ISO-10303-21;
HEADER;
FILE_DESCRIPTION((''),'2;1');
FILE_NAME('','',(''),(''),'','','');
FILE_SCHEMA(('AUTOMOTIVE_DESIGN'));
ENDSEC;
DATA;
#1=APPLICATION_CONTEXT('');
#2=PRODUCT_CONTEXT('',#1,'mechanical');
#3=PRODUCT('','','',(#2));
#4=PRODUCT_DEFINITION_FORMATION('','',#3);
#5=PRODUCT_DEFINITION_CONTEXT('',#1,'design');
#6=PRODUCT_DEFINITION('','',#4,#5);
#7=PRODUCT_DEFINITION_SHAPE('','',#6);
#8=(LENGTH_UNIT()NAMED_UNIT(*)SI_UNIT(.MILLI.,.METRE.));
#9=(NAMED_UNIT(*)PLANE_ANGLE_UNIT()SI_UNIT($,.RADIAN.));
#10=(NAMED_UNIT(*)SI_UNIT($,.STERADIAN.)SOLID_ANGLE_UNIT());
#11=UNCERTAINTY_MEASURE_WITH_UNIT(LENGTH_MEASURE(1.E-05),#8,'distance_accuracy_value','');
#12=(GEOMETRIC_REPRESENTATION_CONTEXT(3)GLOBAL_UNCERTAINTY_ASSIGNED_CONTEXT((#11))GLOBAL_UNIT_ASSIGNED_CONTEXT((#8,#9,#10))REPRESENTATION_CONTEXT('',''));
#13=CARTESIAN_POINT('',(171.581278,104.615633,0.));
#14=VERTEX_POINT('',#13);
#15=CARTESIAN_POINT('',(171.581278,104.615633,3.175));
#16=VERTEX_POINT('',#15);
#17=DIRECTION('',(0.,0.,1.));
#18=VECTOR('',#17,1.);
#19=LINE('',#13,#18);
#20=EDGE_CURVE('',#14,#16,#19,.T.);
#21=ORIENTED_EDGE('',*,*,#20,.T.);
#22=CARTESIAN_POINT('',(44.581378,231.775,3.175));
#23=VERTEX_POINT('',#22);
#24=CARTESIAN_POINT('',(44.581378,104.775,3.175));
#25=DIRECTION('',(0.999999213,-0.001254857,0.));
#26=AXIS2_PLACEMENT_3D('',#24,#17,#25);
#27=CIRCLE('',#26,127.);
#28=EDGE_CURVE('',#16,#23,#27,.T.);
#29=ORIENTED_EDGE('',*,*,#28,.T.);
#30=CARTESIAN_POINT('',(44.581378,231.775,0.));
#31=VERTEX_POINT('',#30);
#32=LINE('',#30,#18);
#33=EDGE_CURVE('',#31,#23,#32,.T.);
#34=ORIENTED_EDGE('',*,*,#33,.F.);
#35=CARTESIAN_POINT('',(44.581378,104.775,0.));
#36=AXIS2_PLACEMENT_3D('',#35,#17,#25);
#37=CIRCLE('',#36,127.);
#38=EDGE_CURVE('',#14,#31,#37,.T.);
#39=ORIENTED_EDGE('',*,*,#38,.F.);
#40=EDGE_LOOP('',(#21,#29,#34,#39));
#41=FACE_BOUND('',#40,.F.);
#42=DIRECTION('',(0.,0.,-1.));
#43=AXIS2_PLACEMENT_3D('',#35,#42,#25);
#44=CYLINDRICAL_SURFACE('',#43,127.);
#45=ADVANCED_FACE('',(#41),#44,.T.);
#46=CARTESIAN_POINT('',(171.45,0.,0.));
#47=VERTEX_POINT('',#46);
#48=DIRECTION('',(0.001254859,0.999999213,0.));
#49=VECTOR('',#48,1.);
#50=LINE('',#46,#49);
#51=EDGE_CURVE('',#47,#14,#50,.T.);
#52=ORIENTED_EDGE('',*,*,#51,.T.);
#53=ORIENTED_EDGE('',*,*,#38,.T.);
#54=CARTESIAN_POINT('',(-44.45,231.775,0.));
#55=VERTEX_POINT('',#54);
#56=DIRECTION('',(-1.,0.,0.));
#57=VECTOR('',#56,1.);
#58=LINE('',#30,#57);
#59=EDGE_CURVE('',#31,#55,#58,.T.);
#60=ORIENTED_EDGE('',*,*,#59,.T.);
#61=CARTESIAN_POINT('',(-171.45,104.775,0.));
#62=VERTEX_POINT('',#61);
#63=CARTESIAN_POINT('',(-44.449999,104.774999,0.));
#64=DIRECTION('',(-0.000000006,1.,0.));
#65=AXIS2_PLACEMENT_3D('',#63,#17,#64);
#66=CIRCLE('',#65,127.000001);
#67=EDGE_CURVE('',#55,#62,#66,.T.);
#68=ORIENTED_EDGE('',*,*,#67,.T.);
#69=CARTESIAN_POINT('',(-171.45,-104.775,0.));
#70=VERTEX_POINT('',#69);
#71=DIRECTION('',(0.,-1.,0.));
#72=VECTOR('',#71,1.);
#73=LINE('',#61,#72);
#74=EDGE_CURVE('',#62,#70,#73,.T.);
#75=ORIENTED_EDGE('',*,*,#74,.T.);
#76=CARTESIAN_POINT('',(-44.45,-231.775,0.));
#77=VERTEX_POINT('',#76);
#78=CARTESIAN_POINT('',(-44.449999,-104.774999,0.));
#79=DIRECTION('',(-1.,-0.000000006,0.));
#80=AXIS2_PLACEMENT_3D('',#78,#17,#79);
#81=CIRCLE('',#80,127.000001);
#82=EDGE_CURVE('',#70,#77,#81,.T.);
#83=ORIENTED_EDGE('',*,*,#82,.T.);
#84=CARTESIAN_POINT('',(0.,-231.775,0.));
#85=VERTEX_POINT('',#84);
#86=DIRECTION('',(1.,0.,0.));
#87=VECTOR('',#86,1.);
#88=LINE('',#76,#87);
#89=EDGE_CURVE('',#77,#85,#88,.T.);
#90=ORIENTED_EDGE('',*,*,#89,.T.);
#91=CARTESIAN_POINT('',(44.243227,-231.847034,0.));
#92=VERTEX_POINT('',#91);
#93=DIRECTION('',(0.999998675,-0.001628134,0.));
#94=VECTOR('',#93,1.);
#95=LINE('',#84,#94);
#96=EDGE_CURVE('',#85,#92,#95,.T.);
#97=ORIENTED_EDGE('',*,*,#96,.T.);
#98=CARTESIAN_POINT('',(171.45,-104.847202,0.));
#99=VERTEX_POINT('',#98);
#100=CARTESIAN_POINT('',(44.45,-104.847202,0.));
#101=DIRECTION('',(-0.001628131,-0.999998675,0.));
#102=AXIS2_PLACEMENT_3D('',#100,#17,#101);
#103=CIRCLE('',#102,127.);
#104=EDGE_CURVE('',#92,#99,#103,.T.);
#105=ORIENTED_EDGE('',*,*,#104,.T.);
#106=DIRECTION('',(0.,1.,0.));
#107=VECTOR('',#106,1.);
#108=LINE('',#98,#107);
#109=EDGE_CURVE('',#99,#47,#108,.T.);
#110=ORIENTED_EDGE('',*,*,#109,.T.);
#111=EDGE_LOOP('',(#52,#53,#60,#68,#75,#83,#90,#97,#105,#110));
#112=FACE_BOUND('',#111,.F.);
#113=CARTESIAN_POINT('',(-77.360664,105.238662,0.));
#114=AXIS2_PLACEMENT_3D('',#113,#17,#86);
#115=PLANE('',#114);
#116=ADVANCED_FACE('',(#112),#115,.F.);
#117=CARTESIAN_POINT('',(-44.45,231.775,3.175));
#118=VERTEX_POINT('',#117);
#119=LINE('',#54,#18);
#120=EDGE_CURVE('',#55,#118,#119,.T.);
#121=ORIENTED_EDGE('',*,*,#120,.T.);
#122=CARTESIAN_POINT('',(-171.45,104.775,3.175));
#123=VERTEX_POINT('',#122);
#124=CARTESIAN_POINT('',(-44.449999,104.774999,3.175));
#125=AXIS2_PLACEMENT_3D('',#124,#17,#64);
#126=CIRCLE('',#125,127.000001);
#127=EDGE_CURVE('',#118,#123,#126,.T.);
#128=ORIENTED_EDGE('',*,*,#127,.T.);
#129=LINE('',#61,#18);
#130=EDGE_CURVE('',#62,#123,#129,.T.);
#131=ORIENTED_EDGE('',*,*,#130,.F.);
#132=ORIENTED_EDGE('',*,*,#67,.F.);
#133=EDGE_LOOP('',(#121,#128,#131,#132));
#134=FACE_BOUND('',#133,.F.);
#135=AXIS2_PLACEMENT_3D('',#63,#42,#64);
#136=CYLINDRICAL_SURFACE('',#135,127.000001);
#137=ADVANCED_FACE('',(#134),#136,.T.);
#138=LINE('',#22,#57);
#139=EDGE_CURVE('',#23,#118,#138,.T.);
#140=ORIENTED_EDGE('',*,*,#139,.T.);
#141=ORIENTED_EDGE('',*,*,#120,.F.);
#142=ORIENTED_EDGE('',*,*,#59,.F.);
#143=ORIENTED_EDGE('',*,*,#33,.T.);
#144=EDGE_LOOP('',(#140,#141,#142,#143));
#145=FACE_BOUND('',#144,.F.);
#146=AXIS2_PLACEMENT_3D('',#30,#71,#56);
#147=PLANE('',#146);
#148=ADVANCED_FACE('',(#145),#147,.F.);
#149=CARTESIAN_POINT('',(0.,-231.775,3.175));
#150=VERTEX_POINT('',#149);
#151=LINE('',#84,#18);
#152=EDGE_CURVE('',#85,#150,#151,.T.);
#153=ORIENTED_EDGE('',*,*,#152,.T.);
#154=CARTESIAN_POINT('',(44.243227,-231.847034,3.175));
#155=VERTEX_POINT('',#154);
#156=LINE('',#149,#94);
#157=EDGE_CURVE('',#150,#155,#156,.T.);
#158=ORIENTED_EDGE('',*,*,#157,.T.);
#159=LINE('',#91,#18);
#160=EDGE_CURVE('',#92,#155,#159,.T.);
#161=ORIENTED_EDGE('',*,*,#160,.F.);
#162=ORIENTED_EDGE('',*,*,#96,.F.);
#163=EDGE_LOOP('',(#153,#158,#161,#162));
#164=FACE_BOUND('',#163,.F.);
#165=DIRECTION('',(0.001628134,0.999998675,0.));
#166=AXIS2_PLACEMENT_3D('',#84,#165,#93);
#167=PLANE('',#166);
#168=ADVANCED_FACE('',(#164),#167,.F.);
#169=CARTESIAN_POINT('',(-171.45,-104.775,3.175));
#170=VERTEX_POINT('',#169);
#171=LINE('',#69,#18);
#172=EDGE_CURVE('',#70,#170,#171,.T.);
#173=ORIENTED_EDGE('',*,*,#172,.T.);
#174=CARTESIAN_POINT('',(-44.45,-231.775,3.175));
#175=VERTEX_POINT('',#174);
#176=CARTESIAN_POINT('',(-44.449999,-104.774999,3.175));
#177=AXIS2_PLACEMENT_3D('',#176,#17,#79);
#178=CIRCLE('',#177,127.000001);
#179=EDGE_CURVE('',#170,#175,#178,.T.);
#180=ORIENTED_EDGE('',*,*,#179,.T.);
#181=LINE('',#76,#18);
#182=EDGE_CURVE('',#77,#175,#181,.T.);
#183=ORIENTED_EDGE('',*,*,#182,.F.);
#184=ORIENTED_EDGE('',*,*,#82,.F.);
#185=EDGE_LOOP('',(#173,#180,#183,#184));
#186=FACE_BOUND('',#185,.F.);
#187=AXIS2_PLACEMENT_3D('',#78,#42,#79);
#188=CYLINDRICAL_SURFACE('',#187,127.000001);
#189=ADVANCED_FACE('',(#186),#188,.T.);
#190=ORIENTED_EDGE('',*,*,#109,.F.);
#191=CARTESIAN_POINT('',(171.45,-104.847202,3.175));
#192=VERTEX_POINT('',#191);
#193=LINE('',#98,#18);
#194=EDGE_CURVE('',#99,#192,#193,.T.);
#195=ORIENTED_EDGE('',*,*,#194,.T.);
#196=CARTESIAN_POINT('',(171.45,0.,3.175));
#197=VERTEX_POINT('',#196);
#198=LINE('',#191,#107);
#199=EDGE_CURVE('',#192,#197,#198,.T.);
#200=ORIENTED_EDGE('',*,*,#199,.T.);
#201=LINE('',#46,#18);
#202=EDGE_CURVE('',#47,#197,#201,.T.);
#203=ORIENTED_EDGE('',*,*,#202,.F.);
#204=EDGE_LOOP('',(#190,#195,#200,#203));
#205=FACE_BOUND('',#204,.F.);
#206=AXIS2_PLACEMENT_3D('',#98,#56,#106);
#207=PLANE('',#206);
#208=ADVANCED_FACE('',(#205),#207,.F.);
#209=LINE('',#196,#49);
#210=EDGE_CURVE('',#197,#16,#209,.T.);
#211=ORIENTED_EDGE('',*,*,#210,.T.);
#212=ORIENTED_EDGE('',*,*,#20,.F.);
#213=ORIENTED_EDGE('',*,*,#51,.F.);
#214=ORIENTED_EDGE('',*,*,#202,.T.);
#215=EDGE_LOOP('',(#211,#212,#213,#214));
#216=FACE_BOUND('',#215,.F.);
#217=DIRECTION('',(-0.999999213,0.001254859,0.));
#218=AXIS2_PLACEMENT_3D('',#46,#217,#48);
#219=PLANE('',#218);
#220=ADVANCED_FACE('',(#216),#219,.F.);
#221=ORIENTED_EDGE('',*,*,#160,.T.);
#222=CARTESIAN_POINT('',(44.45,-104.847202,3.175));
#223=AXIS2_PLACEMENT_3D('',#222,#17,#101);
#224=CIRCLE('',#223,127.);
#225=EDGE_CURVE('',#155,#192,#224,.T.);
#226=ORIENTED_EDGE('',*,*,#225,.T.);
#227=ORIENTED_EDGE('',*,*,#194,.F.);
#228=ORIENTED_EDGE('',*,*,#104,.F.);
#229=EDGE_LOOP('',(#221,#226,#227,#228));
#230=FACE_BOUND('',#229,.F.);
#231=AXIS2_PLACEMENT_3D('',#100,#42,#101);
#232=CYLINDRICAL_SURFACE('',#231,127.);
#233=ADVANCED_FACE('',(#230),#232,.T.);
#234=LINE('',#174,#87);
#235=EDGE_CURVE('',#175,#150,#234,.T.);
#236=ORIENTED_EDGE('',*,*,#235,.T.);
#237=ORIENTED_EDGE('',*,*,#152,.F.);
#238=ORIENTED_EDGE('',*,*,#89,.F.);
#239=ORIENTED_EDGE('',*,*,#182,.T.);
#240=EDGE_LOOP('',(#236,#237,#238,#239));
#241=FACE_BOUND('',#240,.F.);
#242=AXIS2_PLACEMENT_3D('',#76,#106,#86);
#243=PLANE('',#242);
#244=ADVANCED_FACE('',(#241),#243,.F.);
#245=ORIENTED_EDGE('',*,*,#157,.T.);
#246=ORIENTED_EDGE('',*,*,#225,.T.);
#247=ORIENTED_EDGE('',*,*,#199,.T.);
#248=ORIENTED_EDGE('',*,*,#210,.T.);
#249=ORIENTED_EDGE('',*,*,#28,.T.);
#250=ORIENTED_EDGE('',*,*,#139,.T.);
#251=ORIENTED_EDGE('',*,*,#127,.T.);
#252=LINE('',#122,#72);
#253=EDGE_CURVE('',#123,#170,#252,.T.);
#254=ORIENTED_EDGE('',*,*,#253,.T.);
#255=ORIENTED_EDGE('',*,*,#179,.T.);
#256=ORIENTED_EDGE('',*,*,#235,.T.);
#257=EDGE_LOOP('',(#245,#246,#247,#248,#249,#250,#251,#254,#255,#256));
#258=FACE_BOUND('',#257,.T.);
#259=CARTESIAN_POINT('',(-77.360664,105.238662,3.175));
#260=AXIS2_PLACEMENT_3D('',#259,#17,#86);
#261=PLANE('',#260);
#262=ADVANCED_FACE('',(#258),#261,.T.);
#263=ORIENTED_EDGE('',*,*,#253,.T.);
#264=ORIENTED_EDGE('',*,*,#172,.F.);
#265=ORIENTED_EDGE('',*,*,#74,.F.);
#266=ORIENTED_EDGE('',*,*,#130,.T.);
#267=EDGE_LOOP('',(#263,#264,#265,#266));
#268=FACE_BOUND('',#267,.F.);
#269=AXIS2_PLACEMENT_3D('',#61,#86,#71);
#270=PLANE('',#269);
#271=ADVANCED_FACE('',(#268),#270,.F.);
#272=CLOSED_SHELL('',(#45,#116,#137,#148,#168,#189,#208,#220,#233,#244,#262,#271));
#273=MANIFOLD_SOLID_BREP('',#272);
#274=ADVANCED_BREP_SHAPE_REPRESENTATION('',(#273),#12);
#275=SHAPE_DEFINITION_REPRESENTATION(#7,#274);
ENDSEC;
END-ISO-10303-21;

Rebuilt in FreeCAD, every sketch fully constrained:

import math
import FreeCAD as App
import Part
import Sketcher
Q = App.Units.Quantity

doc = App.newDocument("Part")
body = doc.addObject("PartDesign::Body", "Body")

sketch1 = body.newObject("Sketcher::SketchObject", "Sketch")
sketch1.AttachmentSupport = (doc.getObject("XY_Plane"), [""])
sketch1.MapMode = "FlatFace"
sketch1.addGeometry([
    Part.ArcOfCircle(Part.Circle(App.Vector(-44, 105, 0), App.Vector(0, 0, 1), 127), math.radians(90), math.radians(180)),
    Part.LineSegment(App.Vector(-171, 105, 0), App.Vector(-171, -105, 0)),
    Part.ArcOfCircle(Part.Circle(App.Vector(-44, -105, 0), App.Vector(0, 0, 1), 127), math.radians(-180), math.radians(-90)),
    Part.LineSegment(App.Vector(-44, -232, 0), App.Vector(0, -232, 0)),
    Part.LineSegment(App.Vector(0, -232, 0), App.Vector(44, -232, 0)),
    Part.ArcOfCircle(Part.Circle(App.Vector(44, -105, 0), App.Vector(0, 0, 1), 127), math.radians(-90), math.radians(0)),
    Part.LineSegment(App.Vector(171, -105, 0), App.Vector(171, 0, 0)),
    Part.LineSegment(App.Vector(171, 0, 0), App.Vector(172, 105, 0)),
    Part.ArcOfCircle(Part.Circle(App.Vector(45, 105, 0), App.Vector(0, 0, 1), 127), math.radians(0), math.radians(90)),
    Part.LineSegment(App.Vector(45, 232, 0), App.Vector(-44, 232, 0)),
], False)
sketch1.addConstraint([
    Sketcher.Constraint("Tangent", 0, 2, 1, 1),
    Sketcher.Constraint("Tangent", 1, 2, 2, 1),
    Sketcher.Constraint("Tangent", 2, 2, 3, 1),
    Sketcher.Constraint("Coincident", 3, 2, 4, 1),
    Sketcher.Constraint("Tangent", 4, 2, 5, 1),
    Sketcher.Constraint("Tangent", 5, 2, 6, 1),
    Sketcher.Constraint("Coincident", 6, 2, 7, 1),
    Sketcher.Constraint("Tangent", 7, 2, 8, 1),
    Sketcher.Constraint("Tangent", 8, 2, 9, 1),
    Sketcher.Constraint("Tangent", 9, 2, 0, 1),
    Sketcher.Constraint("Vertical", 1),
    Sketcher.Constraint("Horizontal", 3),
    Sketcher.Constraint("Vertical", 6),
    Sketcher.Constraint("Horizontal", 9),
    Sketcher.Constraint("Equal", 0, 2),
    Sketcher.Constraint("Equal", 2, 5),
    Sketcher.Constraint("Equal", 5, 8),
    Sketcher.Constraint("PointOnObject", 3, 2, -2),
    Sketcher.Constraint("PointOnObject", 6, 2, -1),
    Sketcher.Constraint("Radius", 0, Q("5 in")),
    Sketcher.Constraint("DistanceX", 3, 1, 3, 2, Q("1.75 in")),
    Sketcher.Constraint("DistanceY", 1, 2, 1, 1, Q("8.25 in")),
    Sketcher.Constraint("DistanceX", 2, 3, 5, 3, Q("3.5 in")),
    Sketcher.Constraint("DistanceY", -1, 1, 0, 3, Q("4.125 in")),
    Sketcher.Constraint("DistanceY", 6, 1, 6, 2, 104.847202),
    Sketcher.Constraint("DistanceX", 9, 2, 9, 1, 89.031378),
])
pad1 = body.newObject("PartDesign::Pad", "Pad")
pad1.Profile = sketch1
pad1.Length = Q("0.125 in")

doc.recompute()
